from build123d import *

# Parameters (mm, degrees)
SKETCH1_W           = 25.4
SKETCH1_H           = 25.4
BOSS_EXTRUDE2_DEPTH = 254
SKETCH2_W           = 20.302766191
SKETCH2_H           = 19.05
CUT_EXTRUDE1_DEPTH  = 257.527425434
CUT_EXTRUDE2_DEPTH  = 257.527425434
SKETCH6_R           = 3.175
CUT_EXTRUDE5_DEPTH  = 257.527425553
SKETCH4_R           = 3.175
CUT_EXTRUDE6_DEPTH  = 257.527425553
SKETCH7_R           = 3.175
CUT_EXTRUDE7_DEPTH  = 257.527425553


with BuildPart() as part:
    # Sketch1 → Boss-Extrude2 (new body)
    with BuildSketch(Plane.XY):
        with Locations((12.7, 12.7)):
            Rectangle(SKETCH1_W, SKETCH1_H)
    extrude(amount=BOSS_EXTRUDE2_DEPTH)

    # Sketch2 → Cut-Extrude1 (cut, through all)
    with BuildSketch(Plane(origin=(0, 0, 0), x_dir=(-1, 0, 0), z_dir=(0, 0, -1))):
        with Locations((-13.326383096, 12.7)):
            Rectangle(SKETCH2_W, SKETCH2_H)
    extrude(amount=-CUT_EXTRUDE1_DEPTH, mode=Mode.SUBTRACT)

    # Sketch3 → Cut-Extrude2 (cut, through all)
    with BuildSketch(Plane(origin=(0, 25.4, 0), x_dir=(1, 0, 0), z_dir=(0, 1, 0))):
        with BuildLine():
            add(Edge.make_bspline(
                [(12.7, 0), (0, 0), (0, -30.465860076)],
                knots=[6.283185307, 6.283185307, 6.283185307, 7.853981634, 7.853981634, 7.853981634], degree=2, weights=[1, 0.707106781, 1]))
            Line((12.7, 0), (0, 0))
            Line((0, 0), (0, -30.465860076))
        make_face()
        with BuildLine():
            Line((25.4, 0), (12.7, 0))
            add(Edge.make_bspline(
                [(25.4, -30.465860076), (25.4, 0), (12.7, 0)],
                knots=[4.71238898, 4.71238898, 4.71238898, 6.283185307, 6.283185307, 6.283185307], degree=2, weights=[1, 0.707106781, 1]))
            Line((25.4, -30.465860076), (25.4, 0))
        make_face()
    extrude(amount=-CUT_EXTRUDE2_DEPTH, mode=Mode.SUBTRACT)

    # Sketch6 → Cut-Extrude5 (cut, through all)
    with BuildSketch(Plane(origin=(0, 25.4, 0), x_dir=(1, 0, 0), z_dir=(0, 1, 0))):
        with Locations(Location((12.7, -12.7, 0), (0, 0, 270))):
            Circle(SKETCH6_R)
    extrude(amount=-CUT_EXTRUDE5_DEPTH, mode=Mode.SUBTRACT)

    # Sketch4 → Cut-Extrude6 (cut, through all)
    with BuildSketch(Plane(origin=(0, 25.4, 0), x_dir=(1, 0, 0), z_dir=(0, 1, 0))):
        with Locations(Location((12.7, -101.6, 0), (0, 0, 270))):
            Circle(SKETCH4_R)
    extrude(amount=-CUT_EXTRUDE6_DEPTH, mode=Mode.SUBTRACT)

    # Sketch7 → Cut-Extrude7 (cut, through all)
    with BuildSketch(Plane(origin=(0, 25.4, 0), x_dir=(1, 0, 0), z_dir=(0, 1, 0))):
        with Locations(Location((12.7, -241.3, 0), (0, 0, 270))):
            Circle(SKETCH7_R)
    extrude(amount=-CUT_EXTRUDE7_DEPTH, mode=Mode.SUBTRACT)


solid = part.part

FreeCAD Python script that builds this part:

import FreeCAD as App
import Part
import Sketcher
Q = App.Units.Quantity


def add_polygon(sketch, points):
    """Adds a closed chain of lines whose ends are joined by coincident constraints."""
    first, n = sketch.GeometryCount, len(points)
    for a, b in zip(points, points[1:] + points[:1]):
        sketch.addGeometry(Part.LineSegment(App.Vector(*a, 0), App.Vector(*b, 0)), False)
    for i in range(n):
        sketch.addConstraint(Sketcher.Constraint("Coincident", first + i, 2, first + (i + 1) % n, 1))

doc = App.newDocument("Part")
body = doc.addObject("PartDesign::Body", "Body")

sketch1 = body.newObject("Sketcher::SketchObject", "Sketch")
sketch1.AttachmentSupport = (doc.getObject("XY_Plane"), [""])
sketch1.MapMode = "FlatFace"
add_polygon(sketch1, [(0, 25), (0, 0), (25, 0), (25, 25)])
sketch1.addConstraint(Sketcher.Constraint("Vertical", 0))
sketch1.addConstraint(Sketcher.Constraint("Horizontal", 1))
sketch1.addConstraint(Sketcher.Constraint("Vertical", 2))
sketch1.addConstraint(Sketcher.Constraint("Horizontal", 3))
sketch1.addConstraint(Sketcher.Constraint("Coincident", 0, 2, -1, 1))
sketch1.addConstraint(Sketcher.Constraint("Equal", 3, 0))
sketch1.addConstraint(Sketcher.Constraint("DistanceX", 1, 1, 1, 2, Q("1 in")))
pad1 = body.newObject("PartDesign::Pad", "Pad")
pad1.Profile = sketch1
pad1.Length = Q("10 in")

sketch2 = body.newObject("Sketcher::SketchObject", "Sketch001")
sketch2.AttachmentSupport = (doc.getObject("XY_Plane"), [""])
sketch2.MapMode = "FlatFace"
add_polygon(sketch2, [(23, 22), (23, 3), (3, 3), (3, 22)])
sketch2.addConstraint(Sketcher.Constraint("Vertical", 0))
sketch2.addConstraint(Sketcher.Constraint("Horizontal", 1))
sketch2.addConstraint(Sketcher.Constraint("Vertical", 2))
sketch2.addConstraint(Sketcher.Constraint("Horizontal", 3))
sketch2.addConstraint(Sketcher.Constraint("DistanceY", 0, 2, 0, 1, Q("0.75 in")))
sketch2.addConstraint(Sketcher.Constraint("DistanceY", -1, 1, 0, 2, Q("0.125 in")))
sketch2.addConstraint(Sketcher.Constraint("DistanceX", -1, 1, 1, 2, Q("0.125 in")))
sketch2.addConstraint(Sketcher.Constraint("DistanceX", 1, 2, 1, 1, Q("20.302766 mm")))
pocket1 = body.newObject("PartDesign::Pocket", "Pocket")
pocket1.Profile = sketch2
pocket1.Type = "ThroughAll"
pocket1.Reversed = True

sketch3 = body.newObject("Sketcher::SketchObject", "Sketch002")
sketch3.AttachmentSupport = (doc.getObject("XZ_Plane"), [""])
sketch3.MapMode = "FlatFace"
sketch3.AttachmentOffset = App.Placement(App.Vector(0, 0, -1 * 25.4), App.Rotation())
sketch3.addGeometry(Part.BSplineCurve([App.Vector(12.7, 0, 0), App.Vector(0, 0, 0), App.Vector(0, 30.46586, 0)], [3, 3], [6.283185307, 7.853981634], False, 2, [1, 0.707106781, 1], False), False)
sketch3.addGeometry(Part.LineSegment(App.Vector(12.7, 0, 0), App.Vector(0, 0, 0)), False)
sketch3.addGeometry(Part.LineSegment(App.Vector(0, 0, 0), App.Vector(0, 30.46586, 0)), False)
sketch3.addGeometry(Part.LineSegment(App.Vector(25.4, 0, 0), App.Vector(12.7, 0, 0)), False)
sketch3.addGeometry(Part.BSplineCurve([App.Vector(25.4, 30.46586, 0), App.Vector(25.4, 0, 0), App.Vector(12.7, 0, 0)], [3, 3], [4.71238898, 6.283185307], False, 2, [1, 0.707106781, 1], False), False)
sketch3.addGeometry(Part.LineSegment(App.Vector(25.4, 30.46586, 0), App.Vector(25.4, 0, 0)), False)
sketch3.addConstraint(Sketcher.Constraint("Block", 0))
sketch3.addConstraint(Sketcher.Constraint("Block", 4))
sketch3.addConstraint(Sketcher.Constraint("Coincident", 0, 1, 1, 1))
sketch3.addConstraint(Sketcher.Constraint("Coincident", 1, 2, 2, 1))
sketch3.addConstraint(Sketcher.Constraint("Coincident", 2, 2, 0, 2))
sketch3.addConstraint(Sketcher.Constraint("Coincident", 3, 2, 4, 2))
sketch3.addConstraint(Sketcher.Constraint("Coincident", 4, 1, 5, 1))
sketch3.addConstraint(Sketcher.Constraint("Coincident", 5, 2, 3, 1))
sketch3.addConstraint(Sketcher.Constraint("Horizontal", 1))
sketch3.addConstraint(Sketcher.Constraint("Vertical", 2))
sketch3.addConstraint(Sketcher.Constraint("Horizontal", 3))
sketch3.addConstraint(Sketcher.Constraint("Vertical", 5))
pocket2 = body.newObject("PartDesign::Pocket", "Pocket001")
pocket2.Profile = sketch3
pocket2.Type = "ThroughAll"
pocket2.Reversed = True

sketch4 = body.newObject("Sketcher::SketchObject", "Sketch003")
sketch4.AttachmentSupport = (doc.getObject("XZ_Plane"), [""])
sketch4.MapMode = "FlatFace"
sketch4.AttachmentOffset = App.Placement(App.Vector(0, 0, -1 * 25.4), App.Rotation())
sketch4.addGeometry(Part.Circle(App.Vector(12.7, 12.7, 0), App.Vector(0, 0, 1), 3.2), False)
sketch4.addConstraint(Sketcher.Constraint("Diameter", 0, Q("0.25 in")))
sketch4.addConstraint(Sketcher.Constraint("DistanceX", -1, 1, 0, 3, Q("0.5 in")))
sketch4.addConstraint(Sketcher.Constraint("DistanceY", -1, 1, 0, 3, Q("0.5 in")))
pocket3 = body.newObject("PartDesign::Pocket", "Pocket002")
pocket3.Profile = sketch4
pocket3.Type = "ThroughAll"
pocket3.Reversed = True

sketch5 = body.newObject("Sketcher::SketchObject", "Sketch004")
sketch5.AttachmentSupport = (doc.getObject("XZ_Plane"), [""])
sketch5.MapMode = "FlatFace"
sketch5.AttachmentOffset = App.Placement(App.Vector(0, 0, -1 * 25.4), App.Rotation())
sketch5.addGeometry(Part.Circle(App.Vector(12.7, 101.6, 0), App.Vector(0, 0, 1), 3.2), False)
sketch5.addConstraint(Sketcher.Constraint("Diameter", 0, Q("0.25 in")))
sketch5.addConstraint(Sketcher.Constraint("DistanceY", -1, 1, 0, 3, Q("4 in")))
sketch5.addConstraint(Sketcher.Constraint("DistanceX", -1, 1, 0, 3, Q("0.5 in")))
pocket4 = body.newObject("PartDesign::Pocket", "Pocket003")
pocket4.Profile = sketch5
pocket4.Type = "ThroughAll"
pocket4.Reversed = True

sketch6 = body.newObject("Sketcher::SketchObject", "Sketch005")
sketch6.AttachmentSupport = (doc.getObject("XZ_Plane"), [""])
sketch6.MapMode = "FlatFace"
sketch6.AttachmentOffset = App.Placement(App.Vector(0, 0, -1 * 25.4), App.Rotation())
sketch6.addGeometry(Part.Circle(App.Vector(12.7, 241.3, 0), App.Vector(0, 0, 1), 3.2), False)
sketch6.addConstraint(Sketcher.Constraint("Diameter", 0, Q("0.25 in")))
sketch6.addConstraint(Sketcher.Constraint("DistanceX", -1, 1, 0, 3, Q("0.5 in")))
sketch6.addConstraint(Sketcher.Constraint("DistanceY", -1, 1, 0, 3, Q("9.5 in")))
pocket5 = body.newObject("PartDesign::Pocket", "Pocket004")
pocket5.Profile = sketch6
pocket5.Type = "ThroughAll"
pocket5.Reversed = True

doc.recompute()
